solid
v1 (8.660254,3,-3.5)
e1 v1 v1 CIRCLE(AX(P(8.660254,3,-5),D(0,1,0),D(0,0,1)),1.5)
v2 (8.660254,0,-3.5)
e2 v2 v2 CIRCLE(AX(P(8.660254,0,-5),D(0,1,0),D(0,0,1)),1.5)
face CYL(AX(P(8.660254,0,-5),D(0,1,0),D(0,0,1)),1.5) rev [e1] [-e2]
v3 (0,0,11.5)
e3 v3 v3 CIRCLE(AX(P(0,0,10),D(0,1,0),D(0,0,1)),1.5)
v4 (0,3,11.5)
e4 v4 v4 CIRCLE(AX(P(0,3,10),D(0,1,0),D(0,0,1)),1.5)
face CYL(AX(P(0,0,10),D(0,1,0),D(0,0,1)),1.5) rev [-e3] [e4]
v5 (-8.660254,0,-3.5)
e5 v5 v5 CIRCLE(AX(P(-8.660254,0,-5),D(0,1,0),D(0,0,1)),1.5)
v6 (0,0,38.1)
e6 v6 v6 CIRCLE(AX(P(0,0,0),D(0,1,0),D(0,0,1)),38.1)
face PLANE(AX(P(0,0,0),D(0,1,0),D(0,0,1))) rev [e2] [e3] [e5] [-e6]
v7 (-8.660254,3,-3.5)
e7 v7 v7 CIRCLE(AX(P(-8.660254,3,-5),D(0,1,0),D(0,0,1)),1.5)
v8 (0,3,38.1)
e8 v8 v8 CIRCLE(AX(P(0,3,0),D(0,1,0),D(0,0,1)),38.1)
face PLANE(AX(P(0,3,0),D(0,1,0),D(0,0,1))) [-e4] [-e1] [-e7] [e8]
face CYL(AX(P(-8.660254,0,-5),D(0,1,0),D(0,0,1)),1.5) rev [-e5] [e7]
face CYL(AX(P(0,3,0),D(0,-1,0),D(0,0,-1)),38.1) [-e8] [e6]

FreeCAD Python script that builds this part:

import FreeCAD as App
import Part
import Sketcher
Q = App.Units.Quantity

doc = App.newDocument("Part")
body = doc.addObject("PartDesign::Body", "Body")

sketch1 = body.newObject("Sketcher::SketchObject", "Sketch")
sketch1.AttachmentSupport = (doc.getObject("XZ_Plane"), [""])
sketch1.MapMode = "FlatFace"
sketch1.addGeometry(Part.Circle(App.Vector(0, 0, 0), App.Vector(0, 0, 1), 38), False)
sketch1.addConstraint([
    Sketcher.Constraint("Coincident", 0, 3, -1, 1),
    Sketcher.Constraint("Diameter", 0, Q("76.2 mm")),
])
pad1 = body.newObject("PartDesign::Pad", "Pad")
pad1.Profile = sketch1
pad1.Length = 3
pad1.Reversed = True

sketch2 = body.newObject("Sketcher::SketchObject", "Sketch001")
sketch2.AttachmentSupport = (doc.getObject("XZ_Plane"), [""])
sketch2.MapMode = "FlatFace"
sketch2.AttachmentOffset = App.Placement(App.Vector(0, 0, -3), App.Rotation())
sketch2.addGeometry([
    Part.Circle(App.Vector(-8.7, -5, 0), App.Vector(0, 0, 1), 1.5),
    Part.Circle(App.Vector(8.7, -5, 0), App.Vector(0, 0, 1), 1.5),
    Part.Circle(App.Vector(0, 10, 0), App.Vector(0, 0, 1), 1.5),
], False)
sketch2.addConstraint([
    Sketcher.Constraint("Equal", 0, 1),
    Sketcher.Constraint("Equal", 1, 2),
    Sketcher.Constraint("Symmetric", 0, 3, 1, 3, -2),
    Sketcher.Constraint("PointOnObject", 2, 3, -2),
    Sketcher.Constraint("Diameter", 0, Q("3 mm")),
    Sketcher.Constraint("DistanceY", 0, 3, -1, 1, Q("5 mm")),
    Sketcher.Constraint("DistanceY", -1, 1, 2, 3, Q("10 mm")),
    Sketcher.Constraint("DistanceX", 0, 3, 1, 3, Q("17.320508 mm")),
])
pocket1 = body.newObject("PartDesign::Pocket", "Pocket")
pocket1.Profile = sketch2
pocket1.Type = "ThroughAll"
pocket1.Reversed = True

doc.recompute()
